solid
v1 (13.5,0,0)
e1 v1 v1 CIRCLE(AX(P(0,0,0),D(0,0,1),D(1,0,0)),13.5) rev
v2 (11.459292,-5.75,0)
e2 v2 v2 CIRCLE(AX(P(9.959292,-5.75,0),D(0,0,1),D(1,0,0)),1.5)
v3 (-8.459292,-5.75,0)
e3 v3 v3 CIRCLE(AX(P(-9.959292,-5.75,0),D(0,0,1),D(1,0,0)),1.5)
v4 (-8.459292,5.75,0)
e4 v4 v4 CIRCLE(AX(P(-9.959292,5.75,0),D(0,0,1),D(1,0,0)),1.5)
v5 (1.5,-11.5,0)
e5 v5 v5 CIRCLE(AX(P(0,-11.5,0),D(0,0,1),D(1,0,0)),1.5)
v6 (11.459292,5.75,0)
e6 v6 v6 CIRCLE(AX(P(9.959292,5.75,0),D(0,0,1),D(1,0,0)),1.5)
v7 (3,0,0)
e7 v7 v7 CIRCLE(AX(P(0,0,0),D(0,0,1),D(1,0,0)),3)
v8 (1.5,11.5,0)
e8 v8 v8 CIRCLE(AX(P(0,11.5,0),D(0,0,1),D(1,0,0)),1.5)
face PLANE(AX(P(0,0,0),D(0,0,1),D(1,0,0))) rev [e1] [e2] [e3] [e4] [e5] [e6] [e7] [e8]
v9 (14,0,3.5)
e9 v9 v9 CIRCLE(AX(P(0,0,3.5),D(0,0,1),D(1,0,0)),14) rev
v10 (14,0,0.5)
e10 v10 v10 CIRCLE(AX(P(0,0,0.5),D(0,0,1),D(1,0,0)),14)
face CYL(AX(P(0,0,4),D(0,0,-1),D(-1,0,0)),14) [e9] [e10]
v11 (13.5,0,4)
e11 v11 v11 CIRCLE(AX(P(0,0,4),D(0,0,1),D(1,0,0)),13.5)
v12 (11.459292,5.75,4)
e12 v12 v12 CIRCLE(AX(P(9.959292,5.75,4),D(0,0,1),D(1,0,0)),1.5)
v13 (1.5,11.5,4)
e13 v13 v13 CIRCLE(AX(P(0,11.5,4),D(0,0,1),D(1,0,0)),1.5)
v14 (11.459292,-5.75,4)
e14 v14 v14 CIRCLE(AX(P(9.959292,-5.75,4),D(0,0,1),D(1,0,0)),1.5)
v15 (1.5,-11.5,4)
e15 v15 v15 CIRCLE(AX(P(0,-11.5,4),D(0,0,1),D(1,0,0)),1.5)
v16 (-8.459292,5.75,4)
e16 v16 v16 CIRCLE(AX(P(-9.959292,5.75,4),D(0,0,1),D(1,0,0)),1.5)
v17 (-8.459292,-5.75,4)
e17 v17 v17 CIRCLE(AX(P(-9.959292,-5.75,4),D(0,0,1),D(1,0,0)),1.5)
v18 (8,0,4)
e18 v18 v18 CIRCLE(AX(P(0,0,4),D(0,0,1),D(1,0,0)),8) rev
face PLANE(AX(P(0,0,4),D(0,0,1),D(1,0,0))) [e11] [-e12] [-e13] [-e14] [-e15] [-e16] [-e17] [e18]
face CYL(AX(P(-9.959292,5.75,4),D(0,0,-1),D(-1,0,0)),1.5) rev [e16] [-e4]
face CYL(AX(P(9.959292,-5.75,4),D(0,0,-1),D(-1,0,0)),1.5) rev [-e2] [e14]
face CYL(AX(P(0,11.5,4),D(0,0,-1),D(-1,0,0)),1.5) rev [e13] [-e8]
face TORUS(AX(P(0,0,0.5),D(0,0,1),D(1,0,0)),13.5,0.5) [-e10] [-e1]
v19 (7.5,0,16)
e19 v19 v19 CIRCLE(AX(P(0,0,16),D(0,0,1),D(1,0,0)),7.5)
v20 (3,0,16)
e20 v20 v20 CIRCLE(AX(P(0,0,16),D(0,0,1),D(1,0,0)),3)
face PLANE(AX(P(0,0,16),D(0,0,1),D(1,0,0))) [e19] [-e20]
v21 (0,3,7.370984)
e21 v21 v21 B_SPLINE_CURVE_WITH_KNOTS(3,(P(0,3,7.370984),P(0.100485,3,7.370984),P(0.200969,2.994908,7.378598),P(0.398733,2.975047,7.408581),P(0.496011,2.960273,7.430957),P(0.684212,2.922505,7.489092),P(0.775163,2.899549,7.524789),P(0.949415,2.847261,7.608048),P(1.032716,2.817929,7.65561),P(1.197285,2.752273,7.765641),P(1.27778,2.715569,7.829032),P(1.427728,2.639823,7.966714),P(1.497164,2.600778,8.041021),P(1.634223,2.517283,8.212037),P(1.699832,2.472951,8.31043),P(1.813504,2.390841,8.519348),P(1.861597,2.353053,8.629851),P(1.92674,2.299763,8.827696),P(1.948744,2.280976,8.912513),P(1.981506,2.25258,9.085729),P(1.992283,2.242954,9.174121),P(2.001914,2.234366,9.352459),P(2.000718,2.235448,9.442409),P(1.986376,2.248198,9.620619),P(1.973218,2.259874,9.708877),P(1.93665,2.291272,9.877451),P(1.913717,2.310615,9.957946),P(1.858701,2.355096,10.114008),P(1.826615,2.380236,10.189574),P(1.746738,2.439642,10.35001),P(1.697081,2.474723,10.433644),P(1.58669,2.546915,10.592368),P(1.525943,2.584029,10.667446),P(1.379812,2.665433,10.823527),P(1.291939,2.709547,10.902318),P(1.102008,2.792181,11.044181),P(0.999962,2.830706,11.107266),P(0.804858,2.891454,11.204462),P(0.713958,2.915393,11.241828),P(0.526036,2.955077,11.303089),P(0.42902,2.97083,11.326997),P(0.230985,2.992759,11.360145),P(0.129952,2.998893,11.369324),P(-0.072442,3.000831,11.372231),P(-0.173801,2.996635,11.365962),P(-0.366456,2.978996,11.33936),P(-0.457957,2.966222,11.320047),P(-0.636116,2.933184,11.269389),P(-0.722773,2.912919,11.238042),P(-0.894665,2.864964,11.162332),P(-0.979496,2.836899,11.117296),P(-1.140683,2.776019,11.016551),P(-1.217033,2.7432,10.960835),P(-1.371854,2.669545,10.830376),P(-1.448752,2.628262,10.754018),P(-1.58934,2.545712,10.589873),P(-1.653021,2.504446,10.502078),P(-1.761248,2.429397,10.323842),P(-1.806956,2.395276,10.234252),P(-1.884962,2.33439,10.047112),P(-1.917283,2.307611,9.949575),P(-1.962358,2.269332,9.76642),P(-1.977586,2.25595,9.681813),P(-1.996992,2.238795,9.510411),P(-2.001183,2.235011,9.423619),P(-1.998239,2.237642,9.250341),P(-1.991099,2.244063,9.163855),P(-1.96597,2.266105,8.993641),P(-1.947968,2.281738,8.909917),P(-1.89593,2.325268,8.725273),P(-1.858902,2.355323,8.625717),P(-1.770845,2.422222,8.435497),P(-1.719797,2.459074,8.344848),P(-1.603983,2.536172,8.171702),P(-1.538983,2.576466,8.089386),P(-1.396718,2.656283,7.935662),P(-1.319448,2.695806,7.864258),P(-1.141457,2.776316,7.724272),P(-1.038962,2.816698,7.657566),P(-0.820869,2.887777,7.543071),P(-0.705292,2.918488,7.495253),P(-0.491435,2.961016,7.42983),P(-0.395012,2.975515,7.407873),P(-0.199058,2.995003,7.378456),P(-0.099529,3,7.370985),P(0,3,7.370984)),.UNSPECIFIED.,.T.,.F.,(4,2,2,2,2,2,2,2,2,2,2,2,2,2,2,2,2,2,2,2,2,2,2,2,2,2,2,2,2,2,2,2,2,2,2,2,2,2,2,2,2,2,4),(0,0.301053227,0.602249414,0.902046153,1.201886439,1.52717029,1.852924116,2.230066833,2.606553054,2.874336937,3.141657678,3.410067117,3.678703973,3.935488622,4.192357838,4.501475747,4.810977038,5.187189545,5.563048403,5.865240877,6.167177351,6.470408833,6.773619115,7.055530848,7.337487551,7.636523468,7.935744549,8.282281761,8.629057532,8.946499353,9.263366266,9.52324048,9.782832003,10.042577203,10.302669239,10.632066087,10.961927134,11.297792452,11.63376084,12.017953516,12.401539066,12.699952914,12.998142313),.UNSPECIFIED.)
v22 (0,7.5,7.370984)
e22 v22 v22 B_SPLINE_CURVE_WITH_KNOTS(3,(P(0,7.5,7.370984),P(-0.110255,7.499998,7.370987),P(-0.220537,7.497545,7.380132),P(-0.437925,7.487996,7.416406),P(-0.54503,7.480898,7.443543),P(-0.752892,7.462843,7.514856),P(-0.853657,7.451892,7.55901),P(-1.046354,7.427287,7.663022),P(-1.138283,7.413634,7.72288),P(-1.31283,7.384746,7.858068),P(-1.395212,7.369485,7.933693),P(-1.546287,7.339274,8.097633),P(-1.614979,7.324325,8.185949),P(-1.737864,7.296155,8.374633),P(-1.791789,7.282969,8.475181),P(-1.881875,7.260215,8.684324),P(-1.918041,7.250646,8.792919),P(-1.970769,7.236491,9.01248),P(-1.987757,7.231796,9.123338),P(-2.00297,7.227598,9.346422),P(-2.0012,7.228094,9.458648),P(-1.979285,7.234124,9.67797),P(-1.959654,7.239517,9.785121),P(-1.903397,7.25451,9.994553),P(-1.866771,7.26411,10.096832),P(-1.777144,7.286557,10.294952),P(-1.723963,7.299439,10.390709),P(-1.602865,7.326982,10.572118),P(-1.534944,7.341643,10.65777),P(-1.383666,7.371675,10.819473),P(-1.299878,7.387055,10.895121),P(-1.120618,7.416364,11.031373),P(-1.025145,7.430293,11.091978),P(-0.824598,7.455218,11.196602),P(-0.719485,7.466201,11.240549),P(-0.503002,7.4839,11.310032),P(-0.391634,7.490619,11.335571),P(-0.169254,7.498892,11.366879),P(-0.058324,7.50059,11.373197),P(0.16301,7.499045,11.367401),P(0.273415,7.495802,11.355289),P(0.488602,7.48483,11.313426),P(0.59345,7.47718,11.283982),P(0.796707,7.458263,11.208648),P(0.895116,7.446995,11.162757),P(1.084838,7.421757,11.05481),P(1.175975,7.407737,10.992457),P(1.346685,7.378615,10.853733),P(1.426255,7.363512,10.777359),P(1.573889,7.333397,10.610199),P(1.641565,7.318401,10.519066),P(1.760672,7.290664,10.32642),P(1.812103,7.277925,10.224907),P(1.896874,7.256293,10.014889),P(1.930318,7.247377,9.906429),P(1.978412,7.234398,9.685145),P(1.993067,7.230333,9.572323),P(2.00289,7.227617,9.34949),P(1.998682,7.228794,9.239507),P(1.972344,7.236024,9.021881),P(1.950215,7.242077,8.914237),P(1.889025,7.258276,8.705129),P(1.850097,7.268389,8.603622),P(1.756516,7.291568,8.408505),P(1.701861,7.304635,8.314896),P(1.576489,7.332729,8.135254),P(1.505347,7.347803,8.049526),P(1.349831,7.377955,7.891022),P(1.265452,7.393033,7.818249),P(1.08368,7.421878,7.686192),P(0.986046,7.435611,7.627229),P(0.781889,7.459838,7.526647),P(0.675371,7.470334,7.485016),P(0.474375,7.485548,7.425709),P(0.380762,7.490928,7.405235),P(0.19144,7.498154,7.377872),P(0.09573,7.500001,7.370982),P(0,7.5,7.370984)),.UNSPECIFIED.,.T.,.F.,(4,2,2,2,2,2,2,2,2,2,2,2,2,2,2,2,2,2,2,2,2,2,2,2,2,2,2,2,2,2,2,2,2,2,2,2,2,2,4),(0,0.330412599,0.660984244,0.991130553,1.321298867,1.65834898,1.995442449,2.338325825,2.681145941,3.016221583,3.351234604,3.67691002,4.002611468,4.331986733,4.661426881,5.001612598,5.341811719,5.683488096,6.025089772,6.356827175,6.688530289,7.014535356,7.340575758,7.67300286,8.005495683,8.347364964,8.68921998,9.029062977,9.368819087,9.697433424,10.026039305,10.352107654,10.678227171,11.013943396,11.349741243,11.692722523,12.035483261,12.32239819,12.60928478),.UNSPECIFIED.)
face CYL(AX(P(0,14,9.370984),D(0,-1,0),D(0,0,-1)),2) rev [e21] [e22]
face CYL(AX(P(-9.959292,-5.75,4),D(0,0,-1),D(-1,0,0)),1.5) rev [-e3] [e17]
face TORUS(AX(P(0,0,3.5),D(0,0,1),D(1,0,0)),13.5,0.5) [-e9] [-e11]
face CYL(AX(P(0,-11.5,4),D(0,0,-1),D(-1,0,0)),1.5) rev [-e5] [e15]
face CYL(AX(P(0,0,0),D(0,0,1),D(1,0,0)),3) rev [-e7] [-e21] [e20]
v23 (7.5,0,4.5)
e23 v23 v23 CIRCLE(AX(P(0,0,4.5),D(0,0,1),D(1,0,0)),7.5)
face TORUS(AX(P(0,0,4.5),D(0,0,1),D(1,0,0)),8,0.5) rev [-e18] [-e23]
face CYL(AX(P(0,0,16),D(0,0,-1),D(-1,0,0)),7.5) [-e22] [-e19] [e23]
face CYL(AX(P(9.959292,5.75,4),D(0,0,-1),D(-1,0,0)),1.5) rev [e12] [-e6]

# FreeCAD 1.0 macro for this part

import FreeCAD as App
import Part
import Sketcher

V = App.Vector


def edges_at(feature, points):
    """Names of the edges that pass closest to the given points."""
    edges = feature.Shape.Edges
    near = lambda p: min(range(len(edges)), key=lambda i: edges[i].distToShape(Part.Vertex(*p))[0])
    return sorted({f"Edge{near(p) + 1}" for p in points})

doc = App.newDocument("Part")
params = doc.addObject("Spreadsheet::Sheet", "Params")
for row, (alias, value) in enumerate([
    ("sketch1_diameter", "28 mm"),
    ("sketch1_diameter2", "3 mm"),
    ("pad1_length", "4 mm"),
    ("sketch2_diameter", "15 mm"),
    ("pad2_length", "12 mm"),
    ("sketch3_diameter", "6 mm"),
    ("fillet_radius", "0.5 mm"),
    ("fillet2_radius", "0.5 mm"),
    ("sketch4_diameter", "4 mm"),
], start=1):
    params.set(f"A{row}", alias)
    params.set(f"B{row}", "=" + value)
    params.setAlias(f"B{row}", alias)

body = doc.addObject("PartDesign::Body", "Body")

sketch1 = body.newObject("Sketcher::SketchObject", "Sketch")
sketch1.AttachmentSupport = (doc.getObject("XY_Plane"), [""])
sketch1.MapMode = "FlatFace"
sketch1.addGeometry([
    Part.Circle(V(0, 0, 0), V(0, 0, 1), 14),
    Part.Circle(V(-10, -5.8, 0), V(0, 0, 1), 1.5),
    Part.Circle(V(0, -11.5, 0), V(0, 0, 1), 1.5),
    Part.Circle(V(10, -5.8, 0), V(0, 0, 1), 1.5),
    Part.Circle(V(-10, 5.8, 0), V(0, 0, 1), 1.5),
    Part.Circle(V(10, 5.8, 0), V(0, 0, 1), 1.5),
    Part.Circle(V(0, 11.5, 0), V(0, 0, 1), 1.5),
], False)
sketch1.addConstraint([
    Sketcher.Constraint("Coincident", 0, 3, -1, 1),
    Sketcher.Constraint("Equal", 1, 2),
    Sketcher.Constraint("Equal", 2, 3),
    Sketcher.Constraint("Equal", 3, 4),
    Sketcher.Constraint("Equal", 4, 5),
    Sketcher.Constraint("Equal", 5, 6),
    Sketcher.Constraint("Symmetric", 3, 3, 4, 3, -1, 1),
    Sketcher.Constraint("Symmetric", 1, 3, 5, 3, -1, 1),
    Sketcher.Constraint("Symmetric", 2, 3, 6, 3, -1, 1),
    Sketcher.Constraint("Symmetric", 1, 3, 3, 3, -2),
    Sketcher.Constraint("PointOnObject", 2, 3, -2),
    Sketcher.Constraint("Diameter", 0, 28.0),
    Sketcher.Constraint("Diameter", 1, 3.0),
    Sketcher.Constraint("DistanceY", 2, 3, -1, 1, 11.5),
    Sketcher.Constraint("DistanceY", 1, 3, 4, 3, 11.5),
    Sketcher.Constraint("DistanceX", 1, 3, -1, 1, 9.959292),
])
sketch1.setExpression("Constraints[11]", "Params.sketch1_diameter")
sketch1.setExpression("Constraints[12]", "Params.sketch1_diameter2")
pad1 = body.newObject("PartDesign::Pad", "Pad")
pad1.Profile = sketch1
pad1.setExpression("Length", "Params.pad1_length")

sketch2 = body.newObject("Sketcher::SketchObject", "Sketch001")
sketch2.AttachmentSupport = (doc.getObject("XY_Plane"), [""])
sketch2.MapMode = "FlatFace"
sketch2.AttachmentOffset = App.Placement(V(0, 0, 4), App.Rotation())
sketch2.addGeometry(Part.Circle(V(0, 0, 0), V(0, 0, 1), 8), False)
sketch2.addConstraint([
    Sketcher.Constraint("Coincident", 0, 3, -1, 1),
    Sketcher.Constraint("Diameter", 0, 15.0),
])
sketch2.setExpression("Constraints[1]", "Params.sketch2_diameter")
pad2 = body.newObject("PartDesign::Pad", "Pad001")
pad2.Profile = sketch2
pad2.setExpression("Length", "Params.pad2_length")

sketch3 = body.newObject("Sketcher::SketchObject", "Sketch002")
sketch3.AttachmentSupport = (doc.getObject("XY_Plane"), [""])
sketch3.MapMode = "FlatFace"
sketch3.AttachmentOffset = App.Placement(V(0, 0, 16), App.Rotation())
sketch3.addGeometry(Part.Circle(V(0, 0, 0), V(0, 0, 1), 3), False)
sketch3.addConstraint([
    Sketcher.Constraint("Coincident", 0, 3, -1, 1),
    Sketcher.Constraint("Diameter", 0, 6.0),
])
sketch3.setExpression("Constraints[1]", "Params.sketch3_diameter")
pocket1 = body.newObject("PartDesign::Pocket", "Pocket")
pocket1.Profile = sketch3
pocket1.Type = "ThroughAll"
doc.recompute()

fillet = body.newObject("PartDesign::Fillet", "Fillet")
fillet.Base = (pocket1, edges_at(pocket1, [(-14, 0, 0), (-14, 0, 4)]))
fillet.setExpression("Radius", "Params.fillet_radius")
doc.recompute()

fillet2 = body.newObject("PartDesign::Fillet", "Fillet001")
fillet2.Base = (fillet, edges_at(fillet, [(-7.5, 0, 4)]))
fillet2.setExpression("Radius", "Params.fillet2_radius")

sketch4 = body.newObject("Sketcher::SketchObject", "Sketch003")
sketch4.AttachmentSupport = (doc.getObject("XZ_Plane"), [""])
sketch4.MapMode = "FlatFace"
sketch4.addGeometry(Part.Circle(V(0, 9.4, 0), V(0, 0, 1), 2), False)
sketch4.addConstraint([
    Sketcher.Constraint("PointOnObject", 0, 3, -2),
    Sketcher.Constraint("Diameter", 0, 4.0),
    Sketcher.Constraint("DistanceY", -1, 1, 0, 3, 9.370984),
])
sketch4.setExpression("Constraints[1]", "Params.sketch4_diameter")
pocket2 = body.newObject("PartDesign::Pocket", "Pocket001")
pocket2.Profile = sketch4
pocket2.Type = "ThroughAll"

doc.recompute()
